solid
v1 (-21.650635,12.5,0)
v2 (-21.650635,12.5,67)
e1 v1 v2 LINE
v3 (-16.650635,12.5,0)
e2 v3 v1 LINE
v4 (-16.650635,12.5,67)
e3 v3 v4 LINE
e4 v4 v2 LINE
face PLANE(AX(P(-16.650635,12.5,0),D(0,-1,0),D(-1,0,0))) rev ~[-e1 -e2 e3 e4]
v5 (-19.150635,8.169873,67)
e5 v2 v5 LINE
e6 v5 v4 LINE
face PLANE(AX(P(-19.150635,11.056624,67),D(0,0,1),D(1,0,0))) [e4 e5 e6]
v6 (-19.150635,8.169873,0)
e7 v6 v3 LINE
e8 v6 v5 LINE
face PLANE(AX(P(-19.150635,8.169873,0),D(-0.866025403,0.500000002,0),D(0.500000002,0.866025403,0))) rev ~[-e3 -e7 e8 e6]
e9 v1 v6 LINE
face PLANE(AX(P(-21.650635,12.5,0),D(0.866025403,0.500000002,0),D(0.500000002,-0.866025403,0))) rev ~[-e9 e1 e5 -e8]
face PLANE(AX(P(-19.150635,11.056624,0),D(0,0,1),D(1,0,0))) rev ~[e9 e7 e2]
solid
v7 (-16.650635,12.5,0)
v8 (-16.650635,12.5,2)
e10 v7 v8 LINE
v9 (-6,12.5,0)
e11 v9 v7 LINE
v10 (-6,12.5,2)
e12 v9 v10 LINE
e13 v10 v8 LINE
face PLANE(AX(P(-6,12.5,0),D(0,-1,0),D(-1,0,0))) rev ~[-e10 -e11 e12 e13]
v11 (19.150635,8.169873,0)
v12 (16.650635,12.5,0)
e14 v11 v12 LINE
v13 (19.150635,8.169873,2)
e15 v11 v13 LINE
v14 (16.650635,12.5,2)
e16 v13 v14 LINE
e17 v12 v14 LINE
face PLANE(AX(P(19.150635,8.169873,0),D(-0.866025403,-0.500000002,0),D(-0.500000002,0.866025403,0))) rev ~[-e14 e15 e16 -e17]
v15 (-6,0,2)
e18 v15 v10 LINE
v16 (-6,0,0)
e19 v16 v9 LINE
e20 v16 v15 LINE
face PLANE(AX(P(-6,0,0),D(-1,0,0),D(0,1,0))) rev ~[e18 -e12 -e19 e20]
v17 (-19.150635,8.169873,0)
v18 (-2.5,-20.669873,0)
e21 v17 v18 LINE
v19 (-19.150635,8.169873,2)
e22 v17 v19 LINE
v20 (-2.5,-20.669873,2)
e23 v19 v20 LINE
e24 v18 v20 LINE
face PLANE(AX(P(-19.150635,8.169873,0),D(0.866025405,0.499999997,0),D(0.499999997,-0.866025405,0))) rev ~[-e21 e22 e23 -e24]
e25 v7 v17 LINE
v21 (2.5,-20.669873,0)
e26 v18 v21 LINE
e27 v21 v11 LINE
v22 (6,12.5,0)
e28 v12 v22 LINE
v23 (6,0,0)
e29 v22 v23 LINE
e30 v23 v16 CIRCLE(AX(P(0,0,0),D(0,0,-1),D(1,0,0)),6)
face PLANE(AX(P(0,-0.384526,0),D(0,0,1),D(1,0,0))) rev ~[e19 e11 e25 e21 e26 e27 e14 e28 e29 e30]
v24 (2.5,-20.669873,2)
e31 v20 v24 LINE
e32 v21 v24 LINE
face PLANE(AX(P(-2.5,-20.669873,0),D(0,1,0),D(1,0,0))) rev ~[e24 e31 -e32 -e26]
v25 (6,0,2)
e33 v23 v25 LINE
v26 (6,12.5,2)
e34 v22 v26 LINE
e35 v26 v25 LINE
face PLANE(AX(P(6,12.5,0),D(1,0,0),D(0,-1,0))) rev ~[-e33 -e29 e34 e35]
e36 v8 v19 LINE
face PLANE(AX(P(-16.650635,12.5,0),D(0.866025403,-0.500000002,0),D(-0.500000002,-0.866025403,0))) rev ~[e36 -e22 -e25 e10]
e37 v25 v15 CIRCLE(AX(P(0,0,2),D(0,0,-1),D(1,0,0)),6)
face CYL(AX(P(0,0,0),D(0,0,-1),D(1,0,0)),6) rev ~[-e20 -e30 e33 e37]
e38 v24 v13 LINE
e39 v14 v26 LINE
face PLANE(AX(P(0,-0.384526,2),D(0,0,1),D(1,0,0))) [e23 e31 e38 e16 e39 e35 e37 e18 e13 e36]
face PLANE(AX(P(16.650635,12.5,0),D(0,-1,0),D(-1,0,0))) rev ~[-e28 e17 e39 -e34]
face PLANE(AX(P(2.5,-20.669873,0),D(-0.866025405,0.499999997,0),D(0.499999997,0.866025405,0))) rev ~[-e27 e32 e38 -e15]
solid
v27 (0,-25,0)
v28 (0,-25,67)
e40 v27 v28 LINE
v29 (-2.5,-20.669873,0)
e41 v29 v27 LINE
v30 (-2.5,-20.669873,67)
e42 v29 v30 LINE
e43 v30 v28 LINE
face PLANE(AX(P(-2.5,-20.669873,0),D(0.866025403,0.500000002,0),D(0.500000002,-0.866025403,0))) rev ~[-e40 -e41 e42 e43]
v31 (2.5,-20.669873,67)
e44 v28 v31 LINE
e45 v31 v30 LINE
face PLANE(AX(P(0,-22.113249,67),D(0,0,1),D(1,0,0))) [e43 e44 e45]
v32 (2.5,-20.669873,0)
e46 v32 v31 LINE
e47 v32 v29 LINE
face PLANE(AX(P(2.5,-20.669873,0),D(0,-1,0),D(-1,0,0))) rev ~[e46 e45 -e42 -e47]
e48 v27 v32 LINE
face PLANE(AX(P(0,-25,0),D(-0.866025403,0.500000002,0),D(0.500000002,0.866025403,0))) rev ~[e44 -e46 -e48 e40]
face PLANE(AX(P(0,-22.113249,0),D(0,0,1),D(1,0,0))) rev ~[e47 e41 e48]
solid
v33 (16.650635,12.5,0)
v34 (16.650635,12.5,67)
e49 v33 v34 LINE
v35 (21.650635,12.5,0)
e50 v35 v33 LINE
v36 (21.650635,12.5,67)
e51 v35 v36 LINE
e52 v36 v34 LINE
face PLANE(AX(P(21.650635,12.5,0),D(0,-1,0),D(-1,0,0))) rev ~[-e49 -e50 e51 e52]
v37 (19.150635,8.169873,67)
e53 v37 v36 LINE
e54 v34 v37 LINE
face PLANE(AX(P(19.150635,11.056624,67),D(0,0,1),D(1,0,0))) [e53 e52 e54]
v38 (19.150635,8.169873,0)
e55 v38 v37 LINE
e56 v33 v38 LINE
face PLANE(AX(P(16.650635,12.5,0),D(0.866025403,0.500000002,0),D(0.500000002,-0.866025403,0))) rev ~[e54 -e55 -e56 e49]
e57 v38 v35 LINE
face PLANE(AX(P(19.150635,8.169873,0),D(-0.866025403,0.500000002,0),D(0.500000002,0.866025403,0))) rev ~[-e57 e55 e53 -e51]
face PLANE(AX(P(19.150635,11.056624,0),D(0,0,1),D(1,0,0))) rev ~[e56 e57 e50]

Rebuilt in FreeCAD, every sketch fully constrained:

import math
import FreeCAD as App
import Part
import Sketcher
Q = App.Units.Quantity

doc = App.newDocument("Part")
body = doc.addObject("PartDesign::Body", "Body")
body.AllowCompound = True

sketch1 = body.newObject("Sketcher::SketchObject", "Sketch")
sketch1.AttachmentSupport = (doc.getObject("XY_Plane"), [""])
sketch1.MapMode = "FlatFace"
sketch1.addGeometry([
    Part.LineSegment(App.Vector(0, -25, 0), App.Vector(2.5, -20.7, 0)),
    Part.LineSegment(App.Vector(2.5, -20.7, 0), App.Vector(-2.5, -20.7, 0)),
    Part.LineSegment(App.Vector(-2.5, -20.7, 0), App.Vector(0, -25, 0)),
    Part.LineSegment(App.Vector(-21.7, 12.5, 0), App.Vector(-19.2, 8.2, 0)),
    Part.LineSegment(App.Vector(-19.2, 8.2, 0), App.Vector(-16.7, 12.5, 0)),
    Part.LineSegment(App.Vector(-16.7, 12.5, 0), App.Vector(-21.7, 12.5, 0)),
    Part.LineSegment(App.Vector(19.2, 8.2, 0), App.Vector(21.7, 12.5, 0)),
    Part.LineSegment(App.Vector(21.7, 12.5, 0), App.Vector(16.7, 12.5, 0)),
    Part.LineSegment(App.Vector(16.7, 12.5, 0), App.Vector(19.2, 8.2, 0)),
], False)
sketch1.addConstraint([
    Sketcher.Constraint("Coincident", 0, 2, 1, 1),
    Sketcher.Constraint("Coincident", 1, 2, 2, 1),
    Sketcher.Constraint("Coincident", 2, 2, 0, 1),
    Sketcher.Constraint("Coincident", 3, 2, 4, 1),
    Sketcher.Constraint("Coincident", 4, 2, 5, 1),
    Sketcher.Constraint("Coincident", 5, 2, 3, 1),
    Sketcher.Constraint("Coincident", 6, 2, 7, 1),
    Sketcher.Constraint("Coincident", 7, 2, 8, 1),
    Sketcher.Constraint("Coincident", 8, 2, 6, 1),
    Sketcher.Constraint("Horizontal", 1),
    Sketcher.Constraint("Horizontal", 5),
    Sketcher.Constraint("Horizontal", 7),
    Sketcher.Constraint("Symmetric", 5, 2, 6, 2, -2),
    Sketcher.Constraint("Symmetric", 3, 2, 8, 2, -2),
    Sketcher.Constraint("PointOnObject", 2, 2, -2),
    Sketcher.Constraint("Parallel", 2, 3),
    Sketcher.Constraint("Parallel", 0, 4),
    Sketcher.Constraint("Parallel", 4, 6),
    Sketcher.Constraint("Parallel", 3, 8),
    Sketcher.Constraint("Equal", 1, 5),
    Sketcher.Constraint("DistanceX", 1, 2, 1, 1, 5.0),
    Sketcher.Constraint("Angle", 0, Q("60 deg")),
    Sketcher.Constraint("DistanceY", 2, 2, -1, 1, 25.0),
    Sketcher.Constraint("DistanceY", -1, 1, 4, 2, 12.5),
    Sketcher.Constraint("DistanceX", 4, 2, 6, 2, 38.30127),
])
pad1 = body.newObject("PartDesign::Pad", "Pad")
pad1.Profile = sketch1
pad1.Length = 67
body2 = doc.addObject("PartDesign::Body", "Body001")

sketch2 = body2.newObject("Sketcher::SketchObject", "Sketch001")
sketch2.AttachmentSupport = (doc.getObject("XY_Plane001"), [""])
sketch2.MapMode = "FlatFace"
sketch2.addGeometry([
    Part.LineSegment(App.Vector(2.5, -20.7, 0), App.Vector(19.2, 8.2, 0)),
    Part.LineSegment(App.Vector(19.2, 8.2, 0), App.Vector(16.7, 12.5, 0)),
    Part.LineSegment(App.Vector(16.7, 12.5, 0), App.Vector(6, 12.5, 0)),
    Part.LineSegment(App.Vector(6, 12.5, 0), App.Vector(6, 0, 0)),
    Part.ArcOfCircle(Part.Circle(App.Vector(0, 0, 0), App.Vector(0, 0, 1), 6), math.radians(180), math.radians(360)),
    Part.LineSegment(App.Vector(-6, 0, 0), App.Vector(-6, 12.5, 0)),
    Part.LineSegment(App.Vector(-6, 12.5, 0), App.Vector(-16.7, 12.5, 0)),
    Part.LineSegment(App.Vector(-16.7, 12.5, 0), App.Vector(-19.2, 8.2, 0)),
    Part.LineSegment(App.Vector(-19.2, 8.2, 0), App.Vector(-2.5, -20.7, 0)),
    Part.LineSegment(App.Vector(-2.5, -20.7, 0), App.Vector(2.5, -20.7, 0)),
], False)
sketch2.addConstraint([
    Sketcher.Constraint("Coincident", 0, 2, 1, 1),
    Sketcher.Constraint("Coincident", 1, 2, 2, 1),
    Sketcher.Constraint("Coincident", 2, 2, 3, 1),
    Sketcher.Constraint("Tangent", 3, 2, 4, 2),
    Sketcher.Constraint("Tangent", 4, 1, 5, 1),
    Sketcher.Constraint("Coincident", 5, 2, 6, 1),
    Sketcher.Constraint("Coincident", 6, 2, 7, 1),
    Sketcher.Constraint("Coincident", 7, 2, 8, 1),
    Sketcher.Constraint("Coincident", 8, 2, 9, 1),
    Sketcher.Constraint("Coincident", 9, 2, 0, 1),
    Sketcher.Constraint("Horizontal", 2),
    Sketcher.Constraint("Vertical", 3),
    Sketcher.Constraint("Vertical", 5),
    Sketcher.Constraint("Horizontal", 6),
    Sketcher.Constraint("Horizontal", 9),
    Sketcher.Constraint("Coincident", 4, 3, -1, 1),
    Sketcher.Constraint("Symmetric", 1, 2, 6, 2, -2),
    Sketcher.Constraint("Symmetric", 0, 2, 7, 2, -2),
    Sketcher.Constraint("Parallel", 0, 7),
    Sketcher.Constraint("Parallel", 1, 8),
    Sketcher.Constraint("Radius", 4, 6.0),
    Sketcher.Constraint("DistanceX", 9, 1, 9, 2, 5.0),
    Sketcher.Constraint("Angle", 0, Q("60 deg")),
    Sketcher.Constraint("Distance", 1, 5.0),
    Sketcher.Constraint("DistanceY", 3, 2, 3, 1, 12.5),
    Sketcher.Constraint("Distance", 0, 33.30127),
])
pad2 = body2.newObject("PartDesign::Pad", "Pad001")
pad2.Profile = sketch2
pad2.Length = 2

doc.recompute()
